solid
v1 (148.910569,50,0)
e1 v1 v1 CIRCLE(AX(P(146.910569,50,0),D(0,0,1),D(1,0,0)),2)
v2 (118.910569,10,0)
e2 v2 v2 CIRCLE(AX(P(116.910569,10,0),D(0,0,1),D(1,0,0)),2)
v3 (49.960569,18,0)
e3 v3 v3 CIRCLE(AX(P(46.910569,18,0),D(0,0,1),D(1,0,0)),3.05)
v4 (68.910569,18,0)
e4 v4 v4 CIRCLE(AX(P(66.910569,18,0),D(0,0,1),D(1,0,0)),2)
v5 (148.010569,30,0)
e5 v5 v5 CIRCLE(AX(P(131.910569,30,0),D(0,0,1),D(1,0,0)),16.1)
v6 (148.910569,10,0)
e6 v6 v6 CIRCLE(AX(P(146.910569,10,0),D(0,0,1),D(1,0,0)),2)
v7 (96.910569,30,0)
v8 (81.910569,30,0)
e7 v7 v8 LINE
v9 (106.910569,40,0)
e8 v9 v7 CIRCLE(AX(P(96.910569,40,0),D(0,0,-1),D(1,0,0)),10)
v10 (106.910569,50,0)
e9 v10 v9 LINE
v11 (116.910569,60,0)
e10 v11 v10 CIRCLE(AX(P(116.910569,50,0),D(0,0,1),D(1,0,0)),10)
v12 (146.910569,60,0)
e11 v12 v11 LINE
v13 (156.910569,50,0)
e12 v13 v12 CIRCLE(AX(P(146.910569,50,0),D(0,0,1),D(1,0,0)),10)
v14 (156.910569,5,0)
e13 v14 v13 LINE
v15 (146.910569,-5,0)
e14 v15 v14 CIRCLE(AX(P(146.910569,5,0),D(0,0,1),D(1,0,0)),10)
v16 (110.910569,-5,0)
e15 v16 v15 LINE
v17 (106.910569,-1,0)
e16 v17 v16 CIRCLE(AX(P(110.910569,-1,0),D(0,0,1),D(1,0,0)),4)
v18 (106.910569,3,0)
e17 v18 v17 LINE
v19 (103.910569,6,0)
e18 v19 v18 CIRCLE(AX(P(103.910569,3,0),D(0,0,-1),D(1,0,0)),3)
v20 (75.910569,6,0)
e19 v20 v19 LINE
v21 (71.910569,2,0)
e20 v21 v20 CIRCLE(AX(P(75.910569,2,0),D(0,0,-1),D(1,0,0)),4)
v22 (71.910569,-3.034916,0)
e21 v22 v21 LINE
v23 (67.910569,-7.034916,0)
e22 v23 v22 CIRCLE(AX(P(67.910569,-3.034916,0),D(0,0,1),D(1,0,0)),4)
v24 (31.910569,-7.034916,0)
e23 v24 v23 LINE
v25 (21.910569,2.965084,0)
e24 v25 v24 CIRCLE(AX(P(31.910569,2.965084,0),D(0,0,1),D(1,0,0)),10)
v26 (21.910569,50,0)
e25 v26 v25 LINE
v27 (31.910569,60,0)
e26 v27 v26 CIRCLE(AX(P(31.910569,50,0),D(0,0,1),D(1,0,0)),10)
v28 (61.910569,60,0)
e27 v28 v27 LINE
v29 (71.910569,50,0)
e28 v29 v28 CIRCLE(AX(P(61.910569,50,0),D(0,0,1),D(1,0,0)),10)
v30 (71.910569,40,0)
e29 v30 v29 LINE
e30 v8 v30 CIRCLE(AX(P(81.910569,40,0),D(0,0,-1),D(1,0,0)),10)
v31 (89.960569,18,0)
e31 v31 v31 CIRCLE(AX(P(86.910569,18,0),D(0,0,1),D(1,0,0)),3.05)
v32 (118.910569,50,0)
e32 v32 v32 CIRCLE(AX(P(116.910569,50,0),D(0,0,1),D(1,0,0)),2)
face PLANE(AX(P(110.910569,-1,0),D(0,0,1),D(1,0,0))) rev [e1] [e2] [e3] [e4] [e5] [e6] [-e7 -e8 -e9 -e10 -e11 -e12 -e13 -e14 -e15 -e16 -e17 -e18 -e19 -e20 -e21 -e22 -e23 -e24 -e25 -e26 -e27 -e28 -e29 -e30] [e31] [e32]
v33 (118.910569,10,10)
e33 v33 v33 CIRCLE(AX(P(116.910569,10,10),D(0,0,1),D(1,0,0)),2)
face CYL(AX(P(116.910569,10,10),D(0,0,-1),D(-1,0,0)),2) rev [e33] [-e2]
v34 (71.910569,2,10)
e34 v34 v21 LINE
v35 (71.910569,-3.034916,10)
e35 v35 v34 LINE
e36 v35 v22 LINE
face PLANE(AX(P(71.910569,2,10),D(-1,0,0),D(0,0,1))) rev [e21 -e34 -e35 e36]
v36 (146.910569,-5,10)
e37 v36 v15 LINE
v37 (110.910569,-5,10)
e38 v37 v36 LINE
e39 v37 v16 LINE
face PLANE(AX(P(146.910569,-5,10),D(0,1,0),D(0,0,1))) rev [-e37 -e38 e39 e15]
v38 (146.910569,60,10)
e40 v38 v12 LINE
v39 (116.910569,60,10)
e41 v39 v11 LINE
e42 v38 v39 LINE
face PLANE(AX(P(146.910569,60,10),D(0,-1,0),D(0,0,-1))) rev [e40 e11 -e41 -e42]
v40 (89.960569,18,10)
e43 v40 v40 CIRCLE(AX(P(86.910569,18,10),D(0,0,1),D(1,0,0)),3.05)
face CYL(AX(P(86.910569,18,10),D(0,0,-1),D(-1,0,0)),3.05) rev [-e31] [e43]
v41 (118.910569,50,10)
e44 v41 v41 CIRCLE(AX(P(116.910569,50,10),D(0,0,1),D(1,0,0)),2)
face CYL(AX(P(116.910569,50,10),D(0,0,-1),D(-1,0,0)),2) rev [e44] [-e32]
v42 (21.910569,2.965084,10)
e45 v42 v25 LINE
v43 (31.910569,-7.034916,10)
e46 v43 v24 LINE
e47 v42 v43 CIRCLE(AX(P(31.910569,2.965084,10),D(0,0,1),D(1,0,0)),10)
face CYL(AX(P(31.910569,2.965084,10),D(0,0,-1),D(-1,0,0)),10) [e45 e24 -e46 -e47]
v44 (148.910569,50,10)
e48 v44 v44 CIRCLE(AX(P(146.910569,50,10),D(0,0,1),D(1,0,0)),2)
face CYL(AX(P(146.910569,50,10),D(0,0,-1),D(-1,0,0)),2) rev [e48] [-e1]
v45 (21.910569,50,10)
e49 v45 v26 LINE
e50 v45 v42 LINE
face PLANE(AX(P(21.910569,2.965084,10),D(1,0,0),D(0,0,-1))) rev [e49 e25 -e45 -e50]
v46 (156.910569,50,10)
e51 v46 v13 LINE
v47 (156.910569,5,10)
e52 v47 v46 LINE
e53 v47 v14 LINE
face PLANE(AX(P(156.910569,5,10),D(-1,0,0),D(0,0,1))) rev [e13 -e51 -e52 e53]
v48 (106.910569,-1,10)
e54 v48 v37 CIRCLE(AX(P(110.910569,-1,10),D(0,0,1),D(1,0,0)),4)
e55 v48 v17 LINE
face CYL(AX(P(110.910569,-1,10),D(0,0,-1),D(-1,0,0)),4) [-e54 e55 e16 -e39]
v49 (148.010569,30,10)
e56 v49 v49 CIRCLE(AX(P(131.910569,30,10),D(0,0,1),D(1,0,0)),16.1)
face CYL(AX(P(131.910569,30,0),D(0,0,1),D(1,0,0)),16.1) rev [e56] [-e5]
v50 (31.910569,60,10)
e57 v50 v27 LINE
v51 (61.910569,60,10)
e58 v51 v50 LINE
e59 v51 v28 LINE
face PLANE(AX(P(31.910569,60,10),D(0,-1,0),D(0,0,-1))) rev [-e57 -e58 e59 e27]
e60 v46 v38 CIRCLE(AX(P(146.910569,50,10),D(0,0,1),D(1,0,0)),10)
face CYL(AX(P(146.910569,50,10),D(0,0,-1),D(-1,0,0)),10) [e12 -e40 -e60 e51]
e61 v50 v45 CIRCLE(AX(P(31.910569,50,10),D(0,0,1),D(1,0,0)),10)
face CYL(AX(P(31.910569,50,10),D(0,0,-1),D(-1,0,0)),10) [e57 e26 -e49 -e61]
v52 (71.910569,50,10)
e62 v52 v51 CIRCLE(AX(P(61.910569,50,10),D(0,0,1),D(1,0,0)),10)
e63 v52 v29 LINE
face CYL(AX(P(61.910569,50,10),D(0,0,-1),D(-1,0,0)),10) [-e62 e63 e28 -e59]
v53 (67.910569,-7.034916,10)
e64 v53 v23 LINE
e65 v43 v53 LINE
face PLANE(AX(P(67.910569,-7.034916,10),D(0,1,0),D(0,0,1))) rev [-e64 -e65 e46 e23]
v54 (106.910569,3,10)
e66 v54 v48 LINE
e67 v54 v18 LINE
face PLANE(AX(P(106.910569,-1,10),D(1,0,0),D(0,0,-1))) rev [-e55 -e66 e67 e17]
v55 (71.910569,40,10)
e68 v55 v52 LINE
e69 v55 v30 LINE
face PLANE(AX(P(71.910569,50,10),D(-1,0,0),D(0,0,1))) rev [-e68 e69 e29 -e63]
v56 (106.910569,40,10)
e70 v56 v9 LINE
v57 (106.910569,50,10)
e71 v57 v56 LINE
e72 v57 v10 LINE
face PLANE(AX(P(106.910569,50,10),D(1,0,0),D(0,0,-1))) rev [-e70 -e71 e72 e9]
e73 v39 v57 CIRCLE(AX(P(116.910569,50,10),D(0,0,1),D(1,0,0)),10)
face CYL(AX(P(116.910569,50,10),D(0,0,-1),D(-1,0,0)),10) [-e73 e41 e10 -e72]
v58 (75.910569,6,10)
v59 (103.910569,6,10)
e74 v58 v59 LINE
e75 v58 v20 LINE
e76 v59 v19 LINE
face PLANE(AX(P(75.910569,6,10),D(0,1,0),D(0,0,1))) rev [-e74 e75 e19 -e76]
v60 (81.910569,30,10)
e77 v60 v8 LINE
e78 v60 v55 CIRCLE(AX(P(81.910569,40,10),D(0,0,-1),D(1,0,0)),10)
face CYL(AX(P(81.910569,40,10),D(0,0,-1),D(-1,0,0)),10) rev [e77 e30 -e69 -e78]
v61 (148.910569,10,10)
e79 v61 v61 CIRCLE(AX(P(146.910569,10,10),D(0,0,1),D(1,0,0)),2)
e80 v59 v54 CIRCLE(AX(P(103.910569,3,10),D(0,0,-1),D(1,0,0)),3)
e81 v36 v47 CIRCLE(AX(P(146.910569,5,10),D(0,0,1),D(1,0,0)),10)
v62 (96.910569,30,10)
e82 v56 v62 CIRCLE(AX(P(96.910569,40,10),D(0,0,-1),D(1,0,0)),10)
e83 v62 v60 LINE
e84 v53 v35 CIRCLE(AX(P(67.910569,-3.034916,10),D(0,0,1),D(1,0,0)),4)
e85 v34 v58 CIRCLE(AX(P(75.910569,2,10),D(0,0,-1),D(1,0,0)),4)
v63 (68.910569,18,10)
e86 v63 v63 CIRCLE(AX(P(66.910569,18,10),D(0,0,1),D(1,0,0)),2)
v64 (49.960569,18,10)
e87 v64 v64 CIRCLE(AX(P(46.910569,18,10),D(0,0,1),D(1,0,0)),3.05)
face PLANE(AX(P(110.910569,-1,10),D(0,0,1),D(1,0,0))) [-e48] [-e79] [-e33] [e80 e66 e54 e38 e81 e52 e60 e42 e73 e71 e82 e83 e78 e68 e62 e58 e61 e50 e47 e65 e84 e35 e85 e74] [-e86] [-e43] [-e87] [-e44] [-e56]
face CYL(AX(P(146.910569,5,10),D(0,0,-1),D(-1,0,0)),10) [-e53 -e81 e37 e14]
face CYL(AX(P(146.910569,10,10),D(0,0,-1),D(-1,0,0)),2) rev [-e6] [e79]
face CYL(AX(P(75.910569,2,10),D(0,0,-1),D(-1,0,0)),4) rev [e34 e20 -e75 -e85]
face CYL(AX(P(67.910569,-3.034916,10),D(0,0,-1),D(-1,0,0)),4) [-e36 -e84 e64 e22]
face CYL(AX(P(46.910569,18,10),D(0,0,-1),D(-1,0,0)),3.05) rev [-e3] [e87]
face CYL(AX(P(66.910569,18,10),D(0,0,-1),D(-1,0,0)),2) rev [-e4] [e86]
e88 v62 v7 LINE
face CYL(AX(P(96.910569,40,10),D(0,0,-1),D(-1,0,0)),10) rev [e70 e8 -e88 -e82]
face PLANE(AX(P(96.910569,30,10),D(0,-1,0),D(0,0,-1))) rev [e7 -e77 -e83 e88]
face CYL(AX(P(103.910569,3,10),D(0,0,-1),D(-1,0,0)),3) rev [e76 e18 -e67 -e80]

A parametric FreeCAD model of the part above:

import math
import FreeCAD as App
import Part
import Sketcher

V = App.Vector

doc = App.newDocument("Part")
body = doc.addObject("PartDesign::Body", "Body")

# Sketch on XY plane
sketch1 = doc.addObject("Sketcher::SketchObject", "Sketch")
body.addObject(sketch1)
sketch1.AttachmentSupport = (doc.XY_Plane, [""])
sketch1.MapMode = "FlatFace"
sketch1.addGeometry([
    Part.LineSegment(V(106.910569, 3, 0), V(106.910569, -1, 0)),  # 0
    Part.ArcOfCircle(Part.Circle(V(110.910569, -1, 0), V(0, 0, 1), 4), math.radians(180), math.radians(270)),  # 1
    Part.LineSegment(V(110.910569, -5, 0), V(146.910569, -5, 0)),  # 2
    Part.ArcOfCircle(Part.Circle(V(146.910569, 5, 0), V(0, 0, 1), 10), math.radians(-90), math.radians(0)),  # 3
    Part.LineSegment(V(156.910569, 5, 0), V(156.910569, 50, 0)),  # 4
    Part.ArcOfCircle(Part.Circle(V(146.910569, 50, 0), V(0, 0, 1), 10), math.radians(0), math.radians(90)),  # 5
    Part.LineSegment(V(146.910569, 60, 0), V(116.910569, 60, 0)),  # 6
    Part.ArcOfCircle(Part.Circle(V(116.910569, 50, 0), V(0, 0, 1), 10), math.radians(90), math.radians(180)),  # 7
    Part.LineSegment(V(106.910569, 50, 0), V(106.910569, 40, 0)),  # 8
    Part.ArcOfCircle(Part.Circle(V(96.910569, 40, 0), V(0, 0, 1), 10), math.radians(-90), math.radians(0)),  # 9
    Part.LineSegment(V(96.910569, 30, 0), V(81.910569, 30, 0)),  # 10
    Part.ArcOfCircle(Part.Circle(V(81.910569, 40, 0), V(0, 0, 1), 10), math.radians(180), math.radians(270)),  # 11
    Part.LineSegment(V(71.910569, 40, 0), V(71.910569, 50, 0)),  # 12
    Part.ArcOfCircle(Part.Circle(V(61.910569, 50, 0), V(0, 0, 1), 10), math.radians(0), math.radians(90)),  # 13
    Part.LineSegment(V(61.910569, 60, 0), V(31.910569, 60, 0)),  # 14
    Part.ArcOfCircle(Part.Circle(V(31.910569, 50, 0), V(0, 0, 1), 10), math.radians(90), math.radians(180)),  # 15
    Part.LineSegment(V(21.910569, 50, 0), V(21.910569, 2.965084, 0)),  # 16
    Part.ArcOfCircle(Part.Circle(V(31.910569, 2.965084, 0), V(0, 0, 1), 10), math.radians(180), math.radians(270)),  # 17
    Part.LineSegment(V(31.910569, -7.034916, 0), V(67.910569, -7.034916, 0)),  # 18
    Part.ArcOfCircle(Part.Circle(V(67.910569, -3.034916, 0), V(0, 0, 1), 4), math.radians(-90), math.radians(0)),  # 19
    Part.LineSegment(V(71.910569, -3.034916, 0), V(71.910569, 2, 0)),  # 20
    Part.ArcOfCircle(Part.Circle(V(75.910569, 2, 0), V(0, 0, 1), 4), math.radians(90), math.radians(180)),  # 21
    Part.LineSegment(V(75.910569, 6, 0), V(103.910569, 6, 0)),  # 22
    Part.ArcOfCircle(Part.Circle(V(103.910569, 3, 0), V(0, 0, 1), 3), math.radians(0), math.radians(90)),  # 23
    Part.Circle(V(146.910569, 10, 0), V(0, 0, 1), 2),  # 24
    Part.Circle(V(116.910569, 10, 0), V(0, 0, 1), 2),  # 25
    Part.Circle(V(86.910569, 18, 0), V(0, 0, 1), 3.05),  # 26
    Part.Circle(V(66.910569, 18, 0), V(0, 0, 1), 2),  # 27
    Part.Circle(V(46.910569, 18, 0), V(0, 0, 1), 3.05),  # 28
    Part.Circle(V(131.910569, 30, 0), V(0, 0, 1), 6.75),  # 29
    Part.Circle(V(146.910569, 50, 0), V(0, 0, 1), 2),  # 30
    Part.Circle(V(116.910569, 50, 0), V(0, 0, 1), 2),  # 31
], False)
sketch1.addConstraint([
    Sketcher.Constraint("Tangent", 0, 2, 1, 1),
    Sketcher.Constraint("Tangent", 1, 2, 2, 1),
    Sketcher.Constraint("Tangent", 2, 2, 3, 1),
    Sketcher.Constraint("Tangent", 3, 2, 4, 1),
    Sketcher.Constraint("Tangent", 4, 2, 5, 1),
    Sketcher.Constraint("Tangent", 5, 2, 6, 1),
    Sketcher.Constraint("Tangent", 6, 2, 7, 1),
    Sketcher.Constraint("Tangent", 7, 2, 8, 1),
    Sketcher.Constraint("Tangent", 8, 2, 9, 2),
    Sketcher.Constraint("Tangent", 9, 1, 10, 1),
    Sketcher.Constraint("Tangent", 10, 2, 11, 2),
    Sketcher.Constraint("Tangent", 11, 1, 12, 1),
    Sketcher.Constraint("Tangent", 12, 2, 13, 1),
    Sketcher.Constraint("Tangent", 13, 2, 14, 1),
    Sketcher.Constraint("Tangent", 14, 2, 15, 1),
    Sketcher.Constraint("Tangent", 15, 2, 16, 1),
    Sketcher.Constraint("Tangent", 16, 2, 17, 1),
    Sketcher.Constraint("Tangent", 17, 2, 18, 1),
    Sketcher.Constraint("Tangent", 18, 2, 19, 1),
    Sketcher.Constraint("Tangent", 19, 2, 20, 1),
    Sketcher.Constraint("Tangent", 20, 2, 21, 2),
    Sketcher.Constraint("Tangent", 21, 1, 22, 1),
    Sketcher.Constraint("Tangent", 22, 2, 23, 2),
    Sketcher.Constraint("Tangent", 23, 1, 0, 1),
    Sketcher.Constraint("Vertical", 0),
    Sketcher.Constraint("Horizontal", 2),
    Sketcher.Constraint("Vertical", 4),
    Sketcher.Constraint("Horizontal", 6),
    Sketcher.Constraint("Vertical", 8),
    Sketcher.Constraint("Horizontal", 10),
    Sketcher.Constraint("Vertical", 12),
    Sketcher.Constraint("Horizontal", 14),
    Sketcher.Constraint("Vertical", 16),
    Sketcher.Constraint("Horizontal", 18),
    Sketcher.Constraint("Vertical", 20),
    Sketcher.Constraint("Horizontal", 22),
    Sketcher.Constraint("Coincident", 30, 3, 5, 3),
    Sketcher.Constraint("Coincident", 31, 3, 7, 3),
    Sketcher.Constraint("Equal", 3, 5),
    Sketcher.Constraint("Equal", 5, 7),
    Sketcher.Constraint("Equal", 7, 9),
    Sketcher.Constraint("Equal", 9, 11),
    Sketcher.Constraint("Equal", 11, 13),
    Sketcher.Constraint("Equal", 13, 15),
    Sketcher.Constraint("Equal", 15, 17),
    Sketcher.Constraint("Equal", 1, 19),
    Sketcher.Constraint("Equal", 19, 21),
    Sketcher.Constraint("Equal", 24, 25),
    Sketcher.Constraint("Equal", 25, 27),
    Sketcher.Constraint("Equal", 26, 28),
    Sketcher.Constraint("Equal", 27, 30),
    Sketcher.Constraint("Equal", 30, 31),
    Sketcher.Constraint("Horizontal", 7, 3, 13, 3),
    Sketcher.Constraint("Horizontal", 24, 3, 25, 3),
    Sketcher.Constraint("Horizontal", 26, 3, 27, 3),
    Sketcher.Constraint("Horizontal", 27, 3, 28, 3),
    Sketcher.Constraint("Horizontal", 29, 3, 9, 1),
    Sketcher.Constraint("Vertical", 5, 3, 24, 3),
    Sketcher.Constraint("Vertical", 7, 3, 25, 3),
    Sketcher.Constraint("Vertical", 0, 2, 7, 2),
    Sketcher.Constraint("Vertical", 12, 2, 19, 2),
    Sketcher.Constraint("Equal", 6, 14),
    Sketcher.Constraint("Diameter", 24, 4.0),
    Sketcher.Constraint("Radius", 1, 4.0),
    Sketcher.Constraint("Radius", 3, 10.0),
    Sketcher.Constraint("Radius", 23, 3.0),
    Sketcher.Constraint("Diameter", 26, 6.1),
    Sketcher.Constraint("Diameter", 29, 13.5),
    Sketcher.Constraint("DistanceX", 2, 1, 2, 2, 36.0),
    Sketcher.Constraint("DistanceX", 10, 2, 10, 1, 15.0),
    Sketcher.Constraint("DistanceY", 0, 2, 0, 1, 4.0),
    Sketcher.Constraint("DistanceY", 4, 1, 4, 2, 45.0),
    Sketcher.Constraint("DistanceY", 8, 2, 8, 1, 10.0),
    Sketcher.Constraint("DistanceY", 1, 3, -1, 1, 1.0),
    Sketcher.Constraint("DistanceY", -1, 1, 24, 3, 10.0),
    Sketcher.Constraint("DistanceY", -1, 1, 26, 3, 18.0),
    Sketcher.Constraint("DistanceX", 21, 3, 26, 3, 11.0),
    Sketcher.Constraint("DistanceX", 27, 3, 21, 3, 9.0),
    Sketcher.Constraint("DistanceX", 28, 3, 27, 3, 20.0),
    Sketcher.Constraint("DistanceX", 29, 3, 5, 3, 15.0),
    Sketcher.Constraint("DistanceY", 16, 2, 16, 1, 47.034916),
    Sketcher.Constraint("DistanceX", -1, 1, 1, 3, 110.910569),
])
pad1 = doc.addObject("PartDesign::Pad", "Pad")
body.addObject(pad1)
pad1.Profile = sketch1
pad1.Length = 10

# Sketch on XY plane
sketch2 = doc.addObject("Sketcher::SketchObject", "Sketch001")
body.addObject(sketch2)
sketch2.AttachmentSupport = (doc.XY_Plane, [""])
sketch2.MapMode = "FlatFace"
sketch2.AttachmentOffset = App.Placement(V(0, 0, 10), App.Rotation())
sketch2.addGeometry(Part.Circle(V(131.910569, 30, 0), V(0, 0, 1), 16.1), False)
sketch2.addConstraint([
    Sketcher.Constraint("Diameter", 0, 32.2),
    Sketcher.Constraint("DistanceY", -1, 1, 0, 3, 30.0),
    Sketcher.Constraint("DistanceX", -1, 1, 0, 3, 131.910569),
])
pocket1 = doc.addObject("PartDesign::Pocket", "Pocket")
body.addObject(pocket1)
pocket1.Profile = sketch2
pocket1.Length = 10

doc.recompute()
